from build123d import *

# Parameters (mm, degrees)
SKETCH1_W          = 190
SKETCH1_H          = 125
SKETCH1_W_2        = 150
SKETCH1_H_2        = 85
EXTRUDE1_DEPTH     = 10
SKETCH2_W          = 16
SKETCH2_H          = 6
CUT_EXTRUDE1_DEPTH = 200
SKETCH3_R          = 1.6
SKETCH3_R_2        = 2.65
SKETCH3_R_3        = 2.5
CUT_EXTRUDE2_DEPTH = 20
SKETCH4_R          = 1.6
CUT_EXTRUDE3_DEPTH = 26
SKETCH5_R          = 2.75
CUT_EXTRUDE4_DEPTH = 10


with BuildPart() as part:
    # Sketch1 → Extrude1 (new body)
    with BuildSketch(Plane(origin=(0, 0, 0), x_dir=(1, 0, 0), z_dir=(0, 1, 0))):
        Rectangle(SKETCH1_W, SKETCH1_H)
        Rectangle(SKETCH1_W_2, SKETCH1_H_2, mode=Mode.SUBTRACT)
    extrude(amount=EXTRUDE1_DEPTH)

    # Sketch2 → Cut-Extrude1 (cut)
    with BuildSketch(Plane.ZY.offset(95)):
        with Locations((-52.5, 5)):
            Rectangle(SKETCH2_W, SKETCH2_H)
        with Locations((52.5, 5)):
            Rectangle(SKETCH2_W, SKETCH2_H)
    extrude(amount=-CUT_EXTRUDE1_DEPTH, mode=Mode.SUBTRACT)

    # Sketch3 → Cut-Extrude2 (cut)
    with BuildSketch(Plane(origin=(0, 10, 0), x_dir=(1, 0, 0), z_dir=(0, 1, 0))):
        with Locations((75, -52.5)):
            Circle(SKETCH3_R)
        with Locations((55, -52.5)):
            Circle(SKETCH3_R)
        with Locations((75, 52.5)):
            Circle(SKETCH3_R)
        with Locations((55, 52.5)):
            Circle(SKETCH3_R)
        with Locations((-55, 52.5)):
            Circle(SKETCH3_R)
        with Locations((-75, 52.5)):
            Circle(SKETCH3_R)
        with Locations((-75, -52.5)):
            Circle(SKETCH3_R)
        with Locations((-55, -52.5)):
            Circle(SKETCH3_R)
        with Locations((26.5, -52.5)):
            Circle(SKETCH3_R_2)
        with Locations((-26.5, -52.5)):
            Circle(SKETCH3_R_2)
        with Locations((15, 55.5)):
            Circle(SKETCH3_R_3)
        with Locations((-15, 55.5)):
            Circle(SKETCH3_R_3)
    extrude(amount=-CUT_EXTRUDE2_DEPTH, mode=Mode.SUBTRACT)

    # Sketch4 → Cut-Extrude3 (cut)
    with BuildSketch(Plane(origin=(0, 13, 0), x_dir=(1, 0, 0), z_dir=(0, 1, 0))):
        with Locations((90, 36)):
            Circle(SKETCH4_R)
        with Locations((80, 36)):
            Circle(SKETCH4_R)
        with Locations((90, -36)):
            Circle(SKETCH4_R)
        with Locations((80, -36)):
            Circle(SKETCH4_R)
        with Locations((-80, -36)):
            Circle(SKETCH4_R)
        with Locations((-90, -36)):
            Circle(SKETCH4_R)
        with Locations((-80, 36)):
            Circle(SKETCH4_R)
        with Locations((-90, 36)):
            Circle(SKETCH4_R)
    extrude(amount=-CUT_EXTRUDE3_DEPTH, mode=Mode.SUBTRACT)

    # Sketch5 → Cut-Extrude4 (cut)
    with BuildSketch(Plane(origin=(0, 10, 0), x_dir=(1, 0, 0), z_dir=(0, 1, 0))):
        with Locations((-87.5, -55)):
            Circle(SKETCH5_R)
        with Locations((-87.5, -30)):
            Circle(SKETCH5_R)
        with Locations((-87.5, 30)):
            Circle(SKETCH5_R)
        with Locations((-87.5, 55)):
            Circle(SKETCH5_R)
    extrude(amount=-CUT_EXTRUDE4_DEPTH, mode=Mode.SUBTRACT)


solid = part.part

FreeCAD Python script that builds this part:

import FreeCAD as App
import Part
import Sketcher

V = App.Vector
Q = App.Units.Quantity


def add_polygon(sketch, points):
    """Adds a closed chain of lines whose ends are joined by coincident constraints."""
    first, n = sketch.GeometryCount, len(points)
    for a, b in zip(points, points[1:] + points[:1]):
        sketch.addGeometry(Part.LineSegment(App.Vector(*a, 0), App.Vector(*b, 0)), False)
    for i in range(n):
        sketch.addConstraint(Sketcher.Constraint("Coincident", first + i, 2, first + (i + 1) % n, 1))

doc = App.newDocument("Part")
params = doc.addObject("Spreadsheet::Sheet", "Params")
for row, (alias, value) in enumerate([
    ("sketch1_width", "190 mm"),
    ("sketch1_width2", "150 mm"),
    ("sketch1_height", "125 mm"),
    ("sketch1_height2", "85 mm"),
    ("pad1_length", "10 mm"),
    ("sketch2_width", "6 mm"),
    ("sketch2_height", "16 mm"),
    ("pocket1_length", "200 mm"),
    ("sketch3_diameter", "5 mm"),
    ("sketch3_diameter2", "3.2 mm"),
    ("sketch3_diameter3", "5.3 mm"),
    ("pocket2_length", "20 mm"),
    ("sketch4_diameter", "3.2 mm"),
    ("pocket3_length", "26 mm"),
    ("sketch5_diameter", "5.5 mm"),
    ("pocket4_length", "10 mm"),
], start=1):
    params.set(f"A{row}", alias)
    params.set(f"B{row}", "=" + value)
    params.setAlias(f"B{row}", alias)

body = doc.addObject("PartDesign::Body", "Body")

# Sketch on XZ plane
sketch1 = body.newObject("Sketcher::SketchObject", "Sketch")
sketch1.AttachmentSupport = (doc.getObject("XZ_Plane"), [""])
sketch1.MapMode = "FlatFace"
add_polygon(sketch1, [(-95, -62.5), (-95, 62.5), (95, 62.5), (95, -62.5)])  # lines 0-3
add_polygon(sketch1, [(75, 42.5), (-75, 42.5), (-75, -42.5), (75, -42.5)])  # lines 4-7
sketch1.addConstraint([
    Sketcher.Constraint("Vertical", 0),
    Sketcher.Constraint("Horizontal", 1),
    Sketcher.Constraint("Vertical", 2),
    Sketcher.Constraint("Horizontal", 3),
    Sketcher.Constraint("Horizontal", 4),
    Sketcher.Constraint("Vertical", 5),
    Sketcher.Constraint("Horizontal", 6),
    Sketcher.Constraint("Vertical", 7),
    Sketcher.Constraint("Symmetric", 0, 2, 2, 2, -1, 1),
    Sketcher.Constraint("Symmetric", 4, 2, 6, 2, -1, 1),
    Sketcher.Constraint("DistanceX", 1, 1, 1, 2, Q("190 mm")),
    Sketcher.Constraint("DistanceX", 4, 2, 4, 1, Q("150 mm")),
    Sketcher.Constraint("DistanceY", 0, 1, 0, 2, Q("125 mm")),
    Sketcher.Constraint("DistanceY", 5, 2, 5, 1, Q("85 mm")),
])
sketch1.setExpression("Constraints[18]", "Params.sketch1_width")
sketch1.setExpression("Constraints[19]", "Params.sketch1_width2")
sketch1.setExpression("Constraints[20]", "Params.sketch1_height")
sketch1.setExpression("Constraints[21]", "Params.sketch1_height2")
pad1 = body.newObject("PartDesign::Pad", "Pad")
pad1.Profile = sketch1
pad1.setExpression("Length", "Params.pad1_length")
pad1.Reversed = True

# Sketch on YZ plane
sketch2 = body.newObject("Sketcher::SketchObject", "Sketch001")
sketch2.AttachmentSupport = (doc.getObject("YZ_Plane"), [""])
sketch2.MapMode = "FlatFace"
sketch2.AttachmentOffset = App.Placement(V(0, 0, -95), App.Rotation())
add_polygon(sketch2, [(8, -60.5), (2, -60.5), (2, -44.5), (8, -44.5)])  # lines 0-3
add_polygon(sketch2, [(8, 44.5), (2, 44.5), (2, 60.5), (8, 60.5)])  # lines 4-7
sketch2.addConstraint([
    Sketcher.Constraint("Horizontal", 0),
    Sketcher.Constraint("Vertical", 1),
    Sketcher.Constraint("Horizontal", 2),
    Sketcher.Constraint("Vertical", 3),
    Sketcher.Constraint("Horizontal", 4),
    Sketcher.Constraint("Vertical", 5),
    Sketcher.Constraint("Horizontal", 6),
    Sketcher.Constraint("Vertical", 7),
    Sketcher.Constraint("Symmetric", 1, 2, 4, 2, -1),
    Sketcher.Constraint("Symmetric", 3, 2, 6, 2, -1),
    Sketcher.Constraint("DistanceX", 0, 2, 0, 1, Q("6 mm")),
    Sketcher.Constraint("DistanceY", 1, 1, 1, 2, Q("16 mm")),
    Sketcher.Constraint("DistanceX", -1, 1, 0, 2, Q("2 mm")),
    Sketcher.Constraint("DistanceY", 1, 2, 4, 2, Q("89 mm")),
])
sketch2.setExpression("Constraints[18]", "Params.sketch2_width")
sketch2.setExpression("Constraints[19]", "Params.sketch2_height")
pocket1 = body.newObject("PartDesign::Pocket", "Pocket")
pocket1.Profile = sketch2
pocket1.setExpression("Length", "Params.pocket1_length")
pocket1.Reversed = True

# Sketch on XZ plane
sketch3 = body.newObject("Sketcher::SketchObject", "Sketch002")
sketch3.AttachmentSupport = (doc.getObject("XZ_Plane"), [""])
sketch3.MapMode = "FlatFace"
sketch3.AttachmentOffset = App.Placement(V(0, 0, -10), App.Rotation())
sketch3.addGeometry([
    Part.Circle(V(75, 52.5, 0), V(0, 0, 1), 1.6),  # 0
    Part.Circle(V(55, 52.5, 0), V(0, 0, 1), 1.6),  # 1
    Part.Circle(V(75, -52.5, 0), V(0, 0, 1), 1.6),  # 2
    Part.Circle(V(55, -52.5, 0), V(0, 0, 1), 1.6),  # 3
    Part.Circle(V(-55, -52.5, 0), V(0, 0, 1), 1.6),  # 4
    Part.Circle(V(-75, -52.5, 0), V(0, 0, 1), 1.6),  # 5
    Part.Circle(V(-75, 52.5, 0), V(0, 0, 1), 1.6),  # 6
    Part.Circle(V(-55, 52.5, 0), V(0, 0, 1), 1.6),  # 7
    Part.Circle(V(26.5, 52.5, 0), V(0, 0, 1), 2.65),  # 8
    Part.Circle(V(-26.5, 52.5, 0), V(0, 0, 1), 2.65),  # 9
    Part.Circle(V(15, -55.5, 0), V(0, 0, 1), 2.5),  # 10
    Part.Circle(V(-15, -55.5, 0), V(0, 0, 1), 2.5),  # 11
], False)
sketch3.addConstraint([
    Sketcher.Constraint("Equal", 0, 1),
    Sketcher.Constraint("Equal", 1, 2),
    Sketcher.Constraint("Equal", 2, 3),
    Sketcher.Constraint("Equal", 3, 4),
    Sketcher.Constraint("Equal", 4, 5),
    Sketcher.Constraint("Equal", 5, 6),
    Sketcher.Constraint("Equal", 6, 7),
    Sketcher.Constraint("Equal", 8, 9),
    Sketcher.Constraint("Equal", 10, 11),
    Sketcher.Constraint("Symmetric", 1, 3, 4, 3, -1, 1),
    Sketcher.Constraint("Symmetric", 0, 3, 5, 3, -1, 1),
    Sketcher.Constraint("Symmetric", 2, 3, 6, 3, -1, 1),
    Sketcher.Constraint("Symmetric", 3, 3, 7, 3, -1, 1),
    Sketcher.Constraint("Symmetric", 3, 3, 4, 3, -2),
    Sketcher.Constraint("Symmetric", 2, 3, 5, 3, -2),
    Sketcher.Constraint("Symmetric", 8, 3, 9, 3, -2),
    Sketcher.Constraint("Symmetric", 10, 3, 11, 3, -2),
    Sketcher.Constraint("Horizontal", 0, 3, 1, 3),
    Sketcher.Constraint("Horizontal", 7, 3, 8, 3),
    Sketcher.Constraint("Diameter", 10, Q("5 mm")),
    Sketcher.Constraint("Diameter", 0, Q("3.2 mm")),
    Sketcher.Constraint("Diameter", 8, Q("5.3 mm")),
    Sketcher.Constraint("DistanceX", -1, 1, 0, 3, Q("75 mm")),
    Sketcher.Constraint("DistanceX", -1, 1, 1, 3, Q("55 mm")),
    Sketcher.Constraint("DistanceX", -1, 1, 10, 3, Q("15 mm")),
    Sketcher.Constraint("DistanceY", 2, 3, 0, 3, Q("105 mm")),
    Sketcher.Constraint("DistanceX", 9, 3, 8, 3, Q("53 mm")),
    Sketcher.Constraint("DistanceY", 10, 3, 3, 3, Q("3 mm")),
])
sketch3.setExpression("Constraints[19]", "Params.sketch3_diameter")
sketch3.setExpression("Constraints[20]", "Params.sketch3_diameter2")
sketch3.setExpression("Constraints[21]", "Params.sketch3_diameter3")
pocket2 = body.newObject("PartDesign::Pocket", "Pocket001")
pocket2.Profile = sketch3
pocket2.setExpression("Length", "Params.pocket2_length")
pocket2.Reversed = True

# Sketch on XZ plane
sketch4 = body.newObject("Sketcher::SketchObject", "Sketch003")
sketch4.AttachmentSupport = (doc.getObject("XZ_Plane"), [""])
sketch4.MapMode = "FlatFace"
sketch4.AttachmentOffset = App.Placement(V(0, 0, -13), App.Rotation())
sketch4.addGeometry([
    Part.Circle(V(90, -36, 0), V(0, 0, 1), 1.6),  # 0
    Part.Circle(V(80, -36, 0), V(0, 0, 1), 1.6),  # 1
    Part.Circle(V(90, 36, 0), V(0, 0, 1), 1.6),  # 2
    Part.Circle(V(80, 36, 0), V(0, 0, 1), 1.6),  # 3
    Part.Circle(V(-80, 36, 0), V(0, 0, 1), 1.6),  # 4
    Part.Circle(V(-90, 36, 0), V(0, 0, 1), 1.6),  # 5
    Part.Circle(V(-80, -36, 0), V(0, 0, 1), 1.6),  # 6
    Part.Circle(V(-90, -36, 0), V(0, 0, 1), 1.6),  # 7
], False)
sketch4.addConstraint([
    Sketcher.Constraint("Equal", 0, 1),
    Sketcher.Constraint("Equal", 1, 2),
    Sketcher.Constraint("Equal", 2, 3),
    Sketcher.Constraint("Equal", 3, 4),
    Sketcher.Constraint("Equal", 4, 5),
    Sketcher.Constraint("Equal", 5, 6),
    Sketcher.Constraint("Equal", 6, 7),
    Sketcher.Constraint("Symmetric", 1, 3, 4, 3, -1, 1),
    Sketcher.Constraint("Symmetric", 0, 3, 5, 3, -1, 1),
    Sketcher.Constraint("Symmetric", 3, 3, 6, 3, -1, 1),
    Sketcher.Constraint("Symmetric", 2, 3, 7, 3, -1, 1),
    Sketcher.Constraint("Symmetric", 3, 3, 4, 3, -2),
    Sketcher.Constraint("Symmetric", 2, 3, 5, 3, -2),
    Sketcher.Constraint("Horizontal", 0, 3, 1, 3),
    Sketcher.Constraint("Diameter", 0, Q("3.2 mm")),
    Sketcher.Constraint("DistanceX", -1, 1, 0, 3, Q("90 mm")),
    Sketcher.Constraint("DistanceY", 0, 3, -1, 1, Q("36 mm")),
    Sketcher.Constraint("DistanceX", -1, 1, 1, 3, Q("80 mm")),
])
sketch4.setExpression("Constraints[14]", "Params.sketch4_diameter")
pocket3 = body.newObject("PartDesign::Pocket", "Pocket002")
pocket3.Profile = sketch4
pocket3.setExpression("Length", "Params.pocket3_length")
pocket3.Reversed = True

# Sketch on XZ plane
sketch5 = body.newObject("Sketcher::SketchObject", "Sketch004")
sketch5.AttachmentSupport = (doc.getObject("XZ_Plane"), [""])
sketch5.MapMode = "FlatFace"
sketch5.AttachmentOffset = App.Placement(V(0, 0, -10), App.Rotation())
sketch5.addGeometry([
    Part.Circle(V(-87.5, 55, 0), V(0, 0, 1), 2.75),
    Part.Circle(V(-87.5, 30, 0), V(0, 0, 1), 2.75),
    Part.Circle(V(-87.5, -30, 0), V(0, 0, 1), 2.75),
    Part.Circle(V(-87.5, -55, 0), V(0, 0, 1), 2.75),
], False)
sketch5.addConstraint([
    Sketcher.Constraint("Equal", 0, 1),
    Sketcher.Constraint("Equal", 1, 2),
    Sketcher.Constraint("Equal", 2, 3),
    Sketcher.Constraint("Symmetric", 1, 3, 2, 3, -1),
    Sketcher.Constraint("Symmetric", 0, 3, 3, 3, -1),
    Sketcher.Constraint("Vertical", 0, 3, 1, 3),
    Sketcher.Constraint("Diameter", 0, Q("5.5 mm")),
    Sketcher.Constraint("DistanceY", -1, 1, 0, 3, Q("55 mm")),
    Sketcher.Constraint("DistanceY", -1, 1, 1, 3, Q("30 mm")),
    Sketcher.Constraint("DistanceX", 0, 3, -1, 1, Q("87.5 mm")),
])
sketch5.setExpression("Constraints[6]", "Params.sketch5_diameter")
pocket4 = body.newObject("PartDesign::Pocket", "Pocket003")
pocket4.Profile = sketch5
pocket4.setExpression("Length", "Params.pocket4_length")
pocket4.Reversed = True

doc.recompute()
